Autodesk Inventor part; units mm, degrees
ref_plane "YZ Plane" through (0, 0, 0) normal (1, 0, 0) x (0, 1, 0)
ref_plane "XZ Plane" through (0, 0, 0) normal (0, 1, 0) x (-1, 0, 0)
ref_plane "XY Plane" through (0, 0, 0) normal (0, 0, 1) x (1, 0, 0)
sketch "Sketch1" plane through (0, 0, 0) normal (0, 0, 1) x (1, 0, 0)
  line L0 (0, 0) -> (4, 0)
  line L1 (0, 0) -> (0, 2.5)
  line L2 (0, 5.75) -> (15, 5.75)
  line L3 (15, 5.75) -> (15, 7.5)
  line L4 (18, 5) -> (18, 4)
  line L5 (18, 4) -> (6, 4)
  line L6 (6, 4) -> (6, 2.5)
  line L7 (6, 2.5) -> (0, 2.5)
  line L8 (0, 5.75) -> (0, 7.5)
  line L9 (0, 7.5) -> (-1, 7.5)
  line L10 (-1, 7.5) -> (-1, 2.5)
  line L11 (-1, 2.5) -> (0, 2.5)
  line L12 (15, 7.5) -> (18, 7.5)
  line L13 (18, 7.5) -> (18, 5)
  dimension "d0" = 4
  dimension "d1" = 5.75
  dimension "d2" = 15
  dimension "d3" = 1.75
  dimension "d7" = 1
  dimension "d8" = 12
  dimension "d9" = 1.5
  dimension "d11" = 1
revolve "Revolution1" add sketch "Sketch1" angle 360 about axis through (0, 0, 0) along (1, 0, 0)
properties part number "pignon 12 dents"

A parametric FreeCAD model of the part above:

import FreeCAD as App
import Part
import Sketcher
from FreeCAD import Vector
Q = App.Units.Quantity


def add_polygon(sketch, points):
    """Adds a closed chain of lines whose ends are joined by coincident constraints."""
    first, n = sketch.GeometryCount, len(points)
    for a, b in zip(points, points[1:] + points[:1]):
        sketch.addGeometry(Part.LineSegment(App.Vector(*a, 0), App.Vector(*b, 0)), False)
    for i in range(n):
        sketch.addConstraint(Sketcher.Constraint("Coincident", first + i, 2, first + (i + 1) % n, 1))

doc = App.newDocument("Part")
params = doc.addObject("Spreadsheet::Sheet", "Params")
for row, (alias, value) in enumerate([
    ("sketch1_width", "15 mm"),
    ("sketch1_width2", "1 mm"),
    ("sketch1_width3", "12 mm"),
    ("sketch1_height", "1.5 mm"),
    ("sketch1_height2", "1.75 mm"),
    ("revolution_angle", "360 deg"),
], start=1):
    params.set(f"A{row}", alias)
    params.set(f"B{row}", "=" + value)
    params.setAlias(f"B{row}", alias)

body = doc.addObject("PartDesign::Body", "Body")

# Sketch on XY plane
sketch1 = body.newObject("Sketcher::SketchObject", "Sketch")
sketch1.AttachmentSupport = (doc.getObject("XY_Plane"), [""])
sketch1.MapMode = "FlatFace"
add_polygon(sketch1, [(15, 5.8), (0, 5.8), (0, 7.5), (-1, 7.5), (-1, 2.5), (6, 2.5), (6, 4), (18, 4), (18, 7.5), (15, 7.5)])  # lines 0-9
sketch1.addConstraint(Sketcher.Constraint("Horizontal", 0))
sketch1.addConstraint(Sketcher.Constraint("Vertical", 1))
sketch1.addConstraint(Sketcher.Constraint("Horizontal", 2))
sketch1.addConstraint(Sketcher.Constraint("Vertical", 3))
sketch1.addConstraint(Sketcher.Constraint("Horizontal", 4))
sketch1.addConstraint(Sketcher.Constraint("Vertical", 5))
sketch1.addConstraint(Sketcher.Constraint("Horizontal", 6))
sketch1.addConstraint(Sketcher.Constraint("Vertical", 7))
sketch1.addConstraint(Sketcher.Constraint("Horizontal", 8))
sketch1.addConstraint(Sketcher.Constraint("Vertical", 9))
sketch1.addConstraint(Sketcher.Constraint("PointOnObject", 0, 2, -2))
sketch1.addConstraint(Sketcher.Constraint("Horizontal", 2, 2, 7, 2))
sketch1.addConstraint(Sketcher.Constraint("DistanceX", 0, 2, 0, 1, Q("15 mm")))
sketch1.addConstraint(Sketcher.Constraint("DistanceX", 2, 2, 2, 1, Q("1 mm")))
sketch1.addConstraint(Sketcher.Constraint("DistanceX", 6, 1, 6, 2, Q("12 mm")))
sketch1.addConstraint(Sketcher.Constraint("DistanceY", 5, 1, 5, 2, Q("1.5 mm")))
sketch1.addConstraint(Sketcher.Constraint("DistanceY", -1, 1, 5, 2, Q("4 mm")))
sketch1.addConstraint(Sketcher.Constraint("DistanceY", 1, 1, 1, 2, Q("1.75 mm")))
sketch1.addConstraint(Sketcher.Constraint("DistanceX", 4, 1, 4, 2, Q("7 mm")))
sketch1.addConstraint(Sketcher.Constraint("DistanceY", 3, 2, 3, 1, Q("5 mm")))
sketch1.setExpression("Constraints[22]", "Params.sketch1_width")
sketch1.setExpression("Constraints[23]", "Params.sketch1_width2")
sketch1.setExpression("Constraints[24]", "Params.sketch1_width3")
sketch1.setExpression("Constraints[25]", "Params.sketch1_height")
sketch1.setExpression("Constraints[27]", "Params.sketch1_height2")
revolution = body.newObject("PartDesign::Revolution", "Revolution")
revolution.Profile = sketch1
revolution.ReferenceAxis = (sketch1, ["H_Axis"])
revolution.setExpression("Angle", "Params.revolution_angle")

doc.recompute()
